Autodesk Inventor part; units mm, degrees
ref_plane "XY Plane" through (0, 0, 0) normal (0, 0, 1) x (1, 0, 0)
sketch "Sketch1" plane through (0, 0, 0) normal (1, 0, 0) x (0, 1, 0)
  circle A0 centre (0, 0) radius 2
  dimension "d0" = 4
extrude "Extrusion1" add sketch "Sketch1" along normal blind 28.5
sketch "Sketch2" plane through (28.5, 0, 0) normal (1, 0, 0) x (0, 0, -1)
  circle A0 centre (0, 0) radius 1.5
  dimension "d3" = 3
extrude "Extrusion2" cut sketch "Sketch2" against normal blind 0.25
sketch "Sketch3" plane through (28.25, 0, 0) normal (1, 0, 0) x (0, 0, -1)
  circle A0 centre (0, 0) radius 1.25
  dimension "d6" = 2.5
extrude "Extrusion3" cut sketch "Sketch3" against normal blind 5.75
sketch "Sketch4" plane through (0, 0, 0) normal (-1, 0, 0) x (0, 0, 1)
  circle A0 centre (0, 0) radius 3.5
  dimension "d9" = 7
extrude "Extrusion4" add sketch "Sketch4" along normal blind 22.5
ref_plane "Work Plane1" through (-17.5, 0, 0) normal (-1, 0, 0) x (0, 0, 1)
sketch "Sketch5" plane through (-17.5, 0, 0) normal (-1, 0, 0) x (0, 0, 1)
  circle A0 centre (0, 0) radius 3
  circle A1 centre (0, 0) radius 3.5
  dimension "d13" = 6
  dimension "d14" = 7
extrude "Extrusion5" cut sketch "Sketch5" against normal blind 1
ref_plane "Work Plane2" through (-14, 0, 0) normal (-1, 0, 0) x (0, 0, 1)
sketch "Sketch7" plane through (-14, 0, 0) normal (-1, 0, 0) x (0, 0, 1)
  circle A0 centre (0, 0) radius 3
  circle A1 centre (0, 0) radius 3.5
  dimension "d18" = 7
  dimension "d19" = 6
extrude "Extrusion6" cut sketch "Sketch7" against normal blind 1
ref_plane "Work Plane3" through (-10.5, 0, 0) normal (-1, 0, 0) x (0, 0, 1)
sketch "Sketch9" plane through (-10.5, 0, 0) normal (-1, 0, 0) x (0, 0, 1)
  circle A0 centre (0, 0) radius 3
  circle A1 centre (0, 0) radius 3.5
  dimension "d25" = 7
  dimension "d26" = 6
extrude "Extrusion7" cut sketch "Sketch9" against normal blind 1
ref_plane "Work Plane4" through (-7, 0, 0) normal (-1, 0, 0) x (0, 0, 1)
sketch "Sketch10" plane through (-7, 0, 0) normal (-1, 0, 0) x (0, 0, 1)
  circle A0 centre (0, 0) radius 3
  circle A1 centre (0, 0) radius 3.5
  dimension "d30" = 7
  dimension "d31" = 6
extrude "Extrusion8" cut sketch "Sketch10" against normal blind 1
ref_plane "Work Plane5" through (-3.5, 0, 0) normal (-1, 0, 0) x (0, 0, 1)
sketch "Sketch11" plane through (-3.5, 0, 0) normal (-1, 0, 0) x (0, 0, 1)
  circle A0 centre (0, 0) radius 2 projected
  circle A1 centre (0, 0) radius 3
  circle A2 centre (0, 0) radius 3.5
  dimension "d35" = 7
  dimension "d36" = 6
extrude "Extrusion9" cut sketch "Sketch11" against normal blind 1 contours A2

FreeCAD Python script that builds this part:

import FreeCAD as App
import Part
import Sketcher

V = App.Vector
Q = App.Units.Quantity

doc = App.newDocument("Part")
body = doc.addObject("PartDesign::Body", "Body")

sketch1 = body.newObject("Sketcher::SketchObject", "Sketch")
sketch1.AttachmentSupport = (doc.getObject("YZ_Plane"), [""])
sketch1.MapMode = "FlatFace"
sketch1.addGeometry(Part.Circle(V(0, 0, 0), V(0, 0, 1), 2), False)
sketch1.addConstraint(Sketcher.Constraint("Coincident", 0, 3, -1, 1))
sketch1.addConstraint(Sketcher.Constraint("Diameter", 0, Q("4 mm")))
pad1 = body.newObject("PartDesign::Pad", "Pad")
pad1.Profile = sketch1
pad1.Length = 28.5

sketch2 = body.newObject("Sketcher::SketchObject", "Sketch001")
sketch2.AttachmentSupport = (doc.getObject("YZ_Plane"), [""])
sketch2.MapMode = "FlatFace"
sketch2.AttachmentOffset = App.Placement(V(0, 0, 28.5), App.Rotation())
sketch2.addGeometry(Part.Circle(V(0, 0, 0), V(0, 0, 1), 1.5), False)
sketch2.addConstraint(Sketcher.Constraint("Coincident", 0, 3, -1, 1))
sketch2.addConstraint(Sketcher.Constraint("Diameter", 0, Q("3 mm")))
pocket1 = body.newObject("PartDesign::Pocket", "Pocket")
pocket1.Profile = sketch2
pocket1.Length = 0.25

sketch3 = body.newObject("Sketcher::SketchObject", "Sketch002")
sketch3.AttachmentSupport = (doc.getObject("YZ_Plane"), [""])
sketch3.MapMode = "FlatFace"
sketch3.AttachmentOffset = App.Placement(V(0, 0, 28.25), App.Rotation())
sketch3.addGeometry(Part.Circle(V(0, 0, 0), V(0, 0, 1), 1.25), False)
sketch3.addConstraint(Sketcher.Constraint("Coincident", 0, 3, -1, 1))
sketch3.addConstraint(Sketcher.Constraint("Diameter", 0, Q("2.5 mm")))
pocket2 = body.newObject("PartDesign::Pocket", "Pocket001")
pocket2.Profile = sketch3
pocket2.Length = 5.75

sketch4 = body.newObject("Sketcher::SketchObject", "Sketch003")
sketch4.AttachmentSupport = (doc.getObject("YZ_Plane"), [""])
sketch4.MapMode = "FlatFace"
sketch4.addGeometry(Part.Circle(V(0, 0, 0), V(0, 0, 1), 3.5), False)
sketch4.addConstraint(Sketcher.Constraint("Coincident", 0, 3, -1, 1))
sketch4.addConstraint(Sketcher.Constraint("Diameter", 0, Q("7 mm")))
pad2 = body.newObject("PartDesign::Pad", "Pad001")
pad2.Profile = sketch4
pad2.Length = 22.5
pad2.Reversed = True

sketch5 = body.newObject("Sketcher::SketchObject", "Sketch004")
sketch5.AttachmentSupport = (doc.getObject("YZ_Plane"), [""])
sketch5.MapMode = "FlatFace"
sketch5.AttachmentOffset = App.Placement(V(0, 0, -17.5), App.Rotation())
sketch5.addGeometry(Part.Circle(V(0, 0, 0), V(0, 0, 1), 3.5), False)
sketch5.addGeometry(Part.Circle(V(0, 0, 0), V(0, 0, 1), 3), False)
sketch5.addConstraint(Sketcher.Constraint("Coincident", 0, 3, -1, 1))
sketch5.addConstraint(Sketcher.Constraint("Coincident", 1, 3, -1, 1))
sketch5.addConstraint(Sketcher.Constraint("Diameter", 0, Q("7 mm")))
sketch5.addConstraint(Sketcher.Constraint("Diameter", 1, Q("6 mm")))
pocket3 = body.newObject("PartDesign::Pocket", "Pocket002")
pocket3.Profile = sketch5
pocket3.Length = 1
pocket3.Reversed = True

sketch6 = body.newObject("Sketcher::SketchObject", "Sketch005")
sketch6.AttachmentSupport = (doc.getObject("YZ_Plane"), [""])
sketch6.MapMode = "FlatFace"
sketch6.AttachmentOffset = App.Placement(V(0, 0, -14), App.Rotation())
sketch6.addGeometry(Part.Circle(V(0, 0, 0), V(0, 0, 1), 3.5), False)
sketch6.addGeometry(Part.Circle(V(0, 0, 0), V(0, 0, 1), 3), False)
sketch6.addConstraint(Sketcher.Constraint("Coincident", 0, 3, -1, 1))
sketch6.addConstraint(Sketcher.Constraint("Coincident", 1, 3, -1, 1))
sketch6.addConstraint(Sketcher.Constraint("Diameter", 0, Q("7 mm")))
sketch6.addConstraint(Sketcher.Constraint("Diameter", 1, Q("6 mm")))
pocket4 = body.newObject("PartDesign::Pocket", "Pocket003")
pocket4.Profile = sketch6
pocket4.Length = 1
pocket4.Reversed = True

sketch7 = body.newObject("Sketcher::SketchObject", "Sketch006")
sketch7.AttachmentSupport = (doc.getObject("YZ_Plane"), [""])
sketch7.MapMode = "FlatFace"
sketch7.AttachmentOffset = App.Placement(V(0, 0, -10.5), App.Rotation())
sketch7.addGeometry(Part.Circle(V(0, 0, 0), V(0, 0, 1), 3.5), False)
sketch7.addGeometry(Part.Circle(V(0, 0, 0), V(0, 0, 1), 3), False)
sketch7.addConstraint(Sketcher.Constraint("Coincident", 0, 3, -1, 1))
sketch7.addConstraint(Sketcher.Constraint("Coincident", 1, 3, -1, 1))
sketch7.addConstraint(Sketcher.Constraint("Diameter", 0, Q("7 mm")))
sketch7.addConstraint(Sketcher.Constraint("Diameter", 1, Q("6 mm")))
pocket5 = body.newObject("PartDesign::Pocket", "Pocket004")
pocket5.Profile = sketch7
pocket5.Length = 1
pocket5.Reversed = True

sketch8 = body.newObject("Sketcher::SketchObject", "Sketch007")
sketch8.AttachmentSupport = (doc.getObject("YZ_Plane"), [""])
sketch8.MapMode = "FlatFace"
sketch8.AttachmentOffset = App.Placement(V(0, 0, -7), App.Rotation())
sketch8.addGeometry(Part.Circle(V(0, 0, 0), V(0, 0, 1), 3.5), False)
sketch8.addGeometry(Part.Circle(V(0, 0, 0), V(0, 0, 1), 3), False)
sketch8.addConstraint(Sketcher.Constraint("Coincident", 0, 3, -1, 1))
sketch8.addConstraint(Sketcher.Constraint("Coincident", 1, 3, -1, 1))
sketch8.addConstraint(Sketcher.Constraint("Diameter", 0, Q("7 mm")))
sketch8.addConstraint(Sketcher.Constraint("Diameter", 1, Q("6 mm")))
pocket6 = body.newObject("PartDesign::Pocket", "Pocket005")
pocket6.Profile = sketch8
pocket6.Length = 1
pocket6.Reversed = True

sketch9 = body.newObject("Sketcher::SketchObject", "Sketch008")
sketch9.AttachmentSupport = (doc.getObject("YZ_Plane"), [""])
sketch9.MapMode = "FlatFace"
sketch9.AttachmentOffset = App.Placement(V(0, 0, -3.5), App.Rotation())
sketch9.addGeometry(Part.Circle(V(0, 0, 0), V(0, 0, 1), 3.5), False)
sketch9.addGeometry(Part.Circle(V(0, 0, 0), V(0, 0, 1), 3), False)
sketch9.addConstraint(Sketcher.Constraint("Coincident", 0, 3, -1, 1))
sketch9.addConstraint(Sketcher.Constraint("Coincident", 1, 3, -1, 1))
sketch9.addConstraint(Sketcher.Constraint("Diameter", 0, Q("7 mm")))
sketch9.addConstraint(Sketcher.Constraint("Diameter", 1, Q("6 mm")))
pocket7 = body.newObject("PartDesign::Pocket", "Pocket006")
pocket7.Profile = sketch9
pocket7.Length = 1
pocket7.Reversed = True

doc.recompute()
